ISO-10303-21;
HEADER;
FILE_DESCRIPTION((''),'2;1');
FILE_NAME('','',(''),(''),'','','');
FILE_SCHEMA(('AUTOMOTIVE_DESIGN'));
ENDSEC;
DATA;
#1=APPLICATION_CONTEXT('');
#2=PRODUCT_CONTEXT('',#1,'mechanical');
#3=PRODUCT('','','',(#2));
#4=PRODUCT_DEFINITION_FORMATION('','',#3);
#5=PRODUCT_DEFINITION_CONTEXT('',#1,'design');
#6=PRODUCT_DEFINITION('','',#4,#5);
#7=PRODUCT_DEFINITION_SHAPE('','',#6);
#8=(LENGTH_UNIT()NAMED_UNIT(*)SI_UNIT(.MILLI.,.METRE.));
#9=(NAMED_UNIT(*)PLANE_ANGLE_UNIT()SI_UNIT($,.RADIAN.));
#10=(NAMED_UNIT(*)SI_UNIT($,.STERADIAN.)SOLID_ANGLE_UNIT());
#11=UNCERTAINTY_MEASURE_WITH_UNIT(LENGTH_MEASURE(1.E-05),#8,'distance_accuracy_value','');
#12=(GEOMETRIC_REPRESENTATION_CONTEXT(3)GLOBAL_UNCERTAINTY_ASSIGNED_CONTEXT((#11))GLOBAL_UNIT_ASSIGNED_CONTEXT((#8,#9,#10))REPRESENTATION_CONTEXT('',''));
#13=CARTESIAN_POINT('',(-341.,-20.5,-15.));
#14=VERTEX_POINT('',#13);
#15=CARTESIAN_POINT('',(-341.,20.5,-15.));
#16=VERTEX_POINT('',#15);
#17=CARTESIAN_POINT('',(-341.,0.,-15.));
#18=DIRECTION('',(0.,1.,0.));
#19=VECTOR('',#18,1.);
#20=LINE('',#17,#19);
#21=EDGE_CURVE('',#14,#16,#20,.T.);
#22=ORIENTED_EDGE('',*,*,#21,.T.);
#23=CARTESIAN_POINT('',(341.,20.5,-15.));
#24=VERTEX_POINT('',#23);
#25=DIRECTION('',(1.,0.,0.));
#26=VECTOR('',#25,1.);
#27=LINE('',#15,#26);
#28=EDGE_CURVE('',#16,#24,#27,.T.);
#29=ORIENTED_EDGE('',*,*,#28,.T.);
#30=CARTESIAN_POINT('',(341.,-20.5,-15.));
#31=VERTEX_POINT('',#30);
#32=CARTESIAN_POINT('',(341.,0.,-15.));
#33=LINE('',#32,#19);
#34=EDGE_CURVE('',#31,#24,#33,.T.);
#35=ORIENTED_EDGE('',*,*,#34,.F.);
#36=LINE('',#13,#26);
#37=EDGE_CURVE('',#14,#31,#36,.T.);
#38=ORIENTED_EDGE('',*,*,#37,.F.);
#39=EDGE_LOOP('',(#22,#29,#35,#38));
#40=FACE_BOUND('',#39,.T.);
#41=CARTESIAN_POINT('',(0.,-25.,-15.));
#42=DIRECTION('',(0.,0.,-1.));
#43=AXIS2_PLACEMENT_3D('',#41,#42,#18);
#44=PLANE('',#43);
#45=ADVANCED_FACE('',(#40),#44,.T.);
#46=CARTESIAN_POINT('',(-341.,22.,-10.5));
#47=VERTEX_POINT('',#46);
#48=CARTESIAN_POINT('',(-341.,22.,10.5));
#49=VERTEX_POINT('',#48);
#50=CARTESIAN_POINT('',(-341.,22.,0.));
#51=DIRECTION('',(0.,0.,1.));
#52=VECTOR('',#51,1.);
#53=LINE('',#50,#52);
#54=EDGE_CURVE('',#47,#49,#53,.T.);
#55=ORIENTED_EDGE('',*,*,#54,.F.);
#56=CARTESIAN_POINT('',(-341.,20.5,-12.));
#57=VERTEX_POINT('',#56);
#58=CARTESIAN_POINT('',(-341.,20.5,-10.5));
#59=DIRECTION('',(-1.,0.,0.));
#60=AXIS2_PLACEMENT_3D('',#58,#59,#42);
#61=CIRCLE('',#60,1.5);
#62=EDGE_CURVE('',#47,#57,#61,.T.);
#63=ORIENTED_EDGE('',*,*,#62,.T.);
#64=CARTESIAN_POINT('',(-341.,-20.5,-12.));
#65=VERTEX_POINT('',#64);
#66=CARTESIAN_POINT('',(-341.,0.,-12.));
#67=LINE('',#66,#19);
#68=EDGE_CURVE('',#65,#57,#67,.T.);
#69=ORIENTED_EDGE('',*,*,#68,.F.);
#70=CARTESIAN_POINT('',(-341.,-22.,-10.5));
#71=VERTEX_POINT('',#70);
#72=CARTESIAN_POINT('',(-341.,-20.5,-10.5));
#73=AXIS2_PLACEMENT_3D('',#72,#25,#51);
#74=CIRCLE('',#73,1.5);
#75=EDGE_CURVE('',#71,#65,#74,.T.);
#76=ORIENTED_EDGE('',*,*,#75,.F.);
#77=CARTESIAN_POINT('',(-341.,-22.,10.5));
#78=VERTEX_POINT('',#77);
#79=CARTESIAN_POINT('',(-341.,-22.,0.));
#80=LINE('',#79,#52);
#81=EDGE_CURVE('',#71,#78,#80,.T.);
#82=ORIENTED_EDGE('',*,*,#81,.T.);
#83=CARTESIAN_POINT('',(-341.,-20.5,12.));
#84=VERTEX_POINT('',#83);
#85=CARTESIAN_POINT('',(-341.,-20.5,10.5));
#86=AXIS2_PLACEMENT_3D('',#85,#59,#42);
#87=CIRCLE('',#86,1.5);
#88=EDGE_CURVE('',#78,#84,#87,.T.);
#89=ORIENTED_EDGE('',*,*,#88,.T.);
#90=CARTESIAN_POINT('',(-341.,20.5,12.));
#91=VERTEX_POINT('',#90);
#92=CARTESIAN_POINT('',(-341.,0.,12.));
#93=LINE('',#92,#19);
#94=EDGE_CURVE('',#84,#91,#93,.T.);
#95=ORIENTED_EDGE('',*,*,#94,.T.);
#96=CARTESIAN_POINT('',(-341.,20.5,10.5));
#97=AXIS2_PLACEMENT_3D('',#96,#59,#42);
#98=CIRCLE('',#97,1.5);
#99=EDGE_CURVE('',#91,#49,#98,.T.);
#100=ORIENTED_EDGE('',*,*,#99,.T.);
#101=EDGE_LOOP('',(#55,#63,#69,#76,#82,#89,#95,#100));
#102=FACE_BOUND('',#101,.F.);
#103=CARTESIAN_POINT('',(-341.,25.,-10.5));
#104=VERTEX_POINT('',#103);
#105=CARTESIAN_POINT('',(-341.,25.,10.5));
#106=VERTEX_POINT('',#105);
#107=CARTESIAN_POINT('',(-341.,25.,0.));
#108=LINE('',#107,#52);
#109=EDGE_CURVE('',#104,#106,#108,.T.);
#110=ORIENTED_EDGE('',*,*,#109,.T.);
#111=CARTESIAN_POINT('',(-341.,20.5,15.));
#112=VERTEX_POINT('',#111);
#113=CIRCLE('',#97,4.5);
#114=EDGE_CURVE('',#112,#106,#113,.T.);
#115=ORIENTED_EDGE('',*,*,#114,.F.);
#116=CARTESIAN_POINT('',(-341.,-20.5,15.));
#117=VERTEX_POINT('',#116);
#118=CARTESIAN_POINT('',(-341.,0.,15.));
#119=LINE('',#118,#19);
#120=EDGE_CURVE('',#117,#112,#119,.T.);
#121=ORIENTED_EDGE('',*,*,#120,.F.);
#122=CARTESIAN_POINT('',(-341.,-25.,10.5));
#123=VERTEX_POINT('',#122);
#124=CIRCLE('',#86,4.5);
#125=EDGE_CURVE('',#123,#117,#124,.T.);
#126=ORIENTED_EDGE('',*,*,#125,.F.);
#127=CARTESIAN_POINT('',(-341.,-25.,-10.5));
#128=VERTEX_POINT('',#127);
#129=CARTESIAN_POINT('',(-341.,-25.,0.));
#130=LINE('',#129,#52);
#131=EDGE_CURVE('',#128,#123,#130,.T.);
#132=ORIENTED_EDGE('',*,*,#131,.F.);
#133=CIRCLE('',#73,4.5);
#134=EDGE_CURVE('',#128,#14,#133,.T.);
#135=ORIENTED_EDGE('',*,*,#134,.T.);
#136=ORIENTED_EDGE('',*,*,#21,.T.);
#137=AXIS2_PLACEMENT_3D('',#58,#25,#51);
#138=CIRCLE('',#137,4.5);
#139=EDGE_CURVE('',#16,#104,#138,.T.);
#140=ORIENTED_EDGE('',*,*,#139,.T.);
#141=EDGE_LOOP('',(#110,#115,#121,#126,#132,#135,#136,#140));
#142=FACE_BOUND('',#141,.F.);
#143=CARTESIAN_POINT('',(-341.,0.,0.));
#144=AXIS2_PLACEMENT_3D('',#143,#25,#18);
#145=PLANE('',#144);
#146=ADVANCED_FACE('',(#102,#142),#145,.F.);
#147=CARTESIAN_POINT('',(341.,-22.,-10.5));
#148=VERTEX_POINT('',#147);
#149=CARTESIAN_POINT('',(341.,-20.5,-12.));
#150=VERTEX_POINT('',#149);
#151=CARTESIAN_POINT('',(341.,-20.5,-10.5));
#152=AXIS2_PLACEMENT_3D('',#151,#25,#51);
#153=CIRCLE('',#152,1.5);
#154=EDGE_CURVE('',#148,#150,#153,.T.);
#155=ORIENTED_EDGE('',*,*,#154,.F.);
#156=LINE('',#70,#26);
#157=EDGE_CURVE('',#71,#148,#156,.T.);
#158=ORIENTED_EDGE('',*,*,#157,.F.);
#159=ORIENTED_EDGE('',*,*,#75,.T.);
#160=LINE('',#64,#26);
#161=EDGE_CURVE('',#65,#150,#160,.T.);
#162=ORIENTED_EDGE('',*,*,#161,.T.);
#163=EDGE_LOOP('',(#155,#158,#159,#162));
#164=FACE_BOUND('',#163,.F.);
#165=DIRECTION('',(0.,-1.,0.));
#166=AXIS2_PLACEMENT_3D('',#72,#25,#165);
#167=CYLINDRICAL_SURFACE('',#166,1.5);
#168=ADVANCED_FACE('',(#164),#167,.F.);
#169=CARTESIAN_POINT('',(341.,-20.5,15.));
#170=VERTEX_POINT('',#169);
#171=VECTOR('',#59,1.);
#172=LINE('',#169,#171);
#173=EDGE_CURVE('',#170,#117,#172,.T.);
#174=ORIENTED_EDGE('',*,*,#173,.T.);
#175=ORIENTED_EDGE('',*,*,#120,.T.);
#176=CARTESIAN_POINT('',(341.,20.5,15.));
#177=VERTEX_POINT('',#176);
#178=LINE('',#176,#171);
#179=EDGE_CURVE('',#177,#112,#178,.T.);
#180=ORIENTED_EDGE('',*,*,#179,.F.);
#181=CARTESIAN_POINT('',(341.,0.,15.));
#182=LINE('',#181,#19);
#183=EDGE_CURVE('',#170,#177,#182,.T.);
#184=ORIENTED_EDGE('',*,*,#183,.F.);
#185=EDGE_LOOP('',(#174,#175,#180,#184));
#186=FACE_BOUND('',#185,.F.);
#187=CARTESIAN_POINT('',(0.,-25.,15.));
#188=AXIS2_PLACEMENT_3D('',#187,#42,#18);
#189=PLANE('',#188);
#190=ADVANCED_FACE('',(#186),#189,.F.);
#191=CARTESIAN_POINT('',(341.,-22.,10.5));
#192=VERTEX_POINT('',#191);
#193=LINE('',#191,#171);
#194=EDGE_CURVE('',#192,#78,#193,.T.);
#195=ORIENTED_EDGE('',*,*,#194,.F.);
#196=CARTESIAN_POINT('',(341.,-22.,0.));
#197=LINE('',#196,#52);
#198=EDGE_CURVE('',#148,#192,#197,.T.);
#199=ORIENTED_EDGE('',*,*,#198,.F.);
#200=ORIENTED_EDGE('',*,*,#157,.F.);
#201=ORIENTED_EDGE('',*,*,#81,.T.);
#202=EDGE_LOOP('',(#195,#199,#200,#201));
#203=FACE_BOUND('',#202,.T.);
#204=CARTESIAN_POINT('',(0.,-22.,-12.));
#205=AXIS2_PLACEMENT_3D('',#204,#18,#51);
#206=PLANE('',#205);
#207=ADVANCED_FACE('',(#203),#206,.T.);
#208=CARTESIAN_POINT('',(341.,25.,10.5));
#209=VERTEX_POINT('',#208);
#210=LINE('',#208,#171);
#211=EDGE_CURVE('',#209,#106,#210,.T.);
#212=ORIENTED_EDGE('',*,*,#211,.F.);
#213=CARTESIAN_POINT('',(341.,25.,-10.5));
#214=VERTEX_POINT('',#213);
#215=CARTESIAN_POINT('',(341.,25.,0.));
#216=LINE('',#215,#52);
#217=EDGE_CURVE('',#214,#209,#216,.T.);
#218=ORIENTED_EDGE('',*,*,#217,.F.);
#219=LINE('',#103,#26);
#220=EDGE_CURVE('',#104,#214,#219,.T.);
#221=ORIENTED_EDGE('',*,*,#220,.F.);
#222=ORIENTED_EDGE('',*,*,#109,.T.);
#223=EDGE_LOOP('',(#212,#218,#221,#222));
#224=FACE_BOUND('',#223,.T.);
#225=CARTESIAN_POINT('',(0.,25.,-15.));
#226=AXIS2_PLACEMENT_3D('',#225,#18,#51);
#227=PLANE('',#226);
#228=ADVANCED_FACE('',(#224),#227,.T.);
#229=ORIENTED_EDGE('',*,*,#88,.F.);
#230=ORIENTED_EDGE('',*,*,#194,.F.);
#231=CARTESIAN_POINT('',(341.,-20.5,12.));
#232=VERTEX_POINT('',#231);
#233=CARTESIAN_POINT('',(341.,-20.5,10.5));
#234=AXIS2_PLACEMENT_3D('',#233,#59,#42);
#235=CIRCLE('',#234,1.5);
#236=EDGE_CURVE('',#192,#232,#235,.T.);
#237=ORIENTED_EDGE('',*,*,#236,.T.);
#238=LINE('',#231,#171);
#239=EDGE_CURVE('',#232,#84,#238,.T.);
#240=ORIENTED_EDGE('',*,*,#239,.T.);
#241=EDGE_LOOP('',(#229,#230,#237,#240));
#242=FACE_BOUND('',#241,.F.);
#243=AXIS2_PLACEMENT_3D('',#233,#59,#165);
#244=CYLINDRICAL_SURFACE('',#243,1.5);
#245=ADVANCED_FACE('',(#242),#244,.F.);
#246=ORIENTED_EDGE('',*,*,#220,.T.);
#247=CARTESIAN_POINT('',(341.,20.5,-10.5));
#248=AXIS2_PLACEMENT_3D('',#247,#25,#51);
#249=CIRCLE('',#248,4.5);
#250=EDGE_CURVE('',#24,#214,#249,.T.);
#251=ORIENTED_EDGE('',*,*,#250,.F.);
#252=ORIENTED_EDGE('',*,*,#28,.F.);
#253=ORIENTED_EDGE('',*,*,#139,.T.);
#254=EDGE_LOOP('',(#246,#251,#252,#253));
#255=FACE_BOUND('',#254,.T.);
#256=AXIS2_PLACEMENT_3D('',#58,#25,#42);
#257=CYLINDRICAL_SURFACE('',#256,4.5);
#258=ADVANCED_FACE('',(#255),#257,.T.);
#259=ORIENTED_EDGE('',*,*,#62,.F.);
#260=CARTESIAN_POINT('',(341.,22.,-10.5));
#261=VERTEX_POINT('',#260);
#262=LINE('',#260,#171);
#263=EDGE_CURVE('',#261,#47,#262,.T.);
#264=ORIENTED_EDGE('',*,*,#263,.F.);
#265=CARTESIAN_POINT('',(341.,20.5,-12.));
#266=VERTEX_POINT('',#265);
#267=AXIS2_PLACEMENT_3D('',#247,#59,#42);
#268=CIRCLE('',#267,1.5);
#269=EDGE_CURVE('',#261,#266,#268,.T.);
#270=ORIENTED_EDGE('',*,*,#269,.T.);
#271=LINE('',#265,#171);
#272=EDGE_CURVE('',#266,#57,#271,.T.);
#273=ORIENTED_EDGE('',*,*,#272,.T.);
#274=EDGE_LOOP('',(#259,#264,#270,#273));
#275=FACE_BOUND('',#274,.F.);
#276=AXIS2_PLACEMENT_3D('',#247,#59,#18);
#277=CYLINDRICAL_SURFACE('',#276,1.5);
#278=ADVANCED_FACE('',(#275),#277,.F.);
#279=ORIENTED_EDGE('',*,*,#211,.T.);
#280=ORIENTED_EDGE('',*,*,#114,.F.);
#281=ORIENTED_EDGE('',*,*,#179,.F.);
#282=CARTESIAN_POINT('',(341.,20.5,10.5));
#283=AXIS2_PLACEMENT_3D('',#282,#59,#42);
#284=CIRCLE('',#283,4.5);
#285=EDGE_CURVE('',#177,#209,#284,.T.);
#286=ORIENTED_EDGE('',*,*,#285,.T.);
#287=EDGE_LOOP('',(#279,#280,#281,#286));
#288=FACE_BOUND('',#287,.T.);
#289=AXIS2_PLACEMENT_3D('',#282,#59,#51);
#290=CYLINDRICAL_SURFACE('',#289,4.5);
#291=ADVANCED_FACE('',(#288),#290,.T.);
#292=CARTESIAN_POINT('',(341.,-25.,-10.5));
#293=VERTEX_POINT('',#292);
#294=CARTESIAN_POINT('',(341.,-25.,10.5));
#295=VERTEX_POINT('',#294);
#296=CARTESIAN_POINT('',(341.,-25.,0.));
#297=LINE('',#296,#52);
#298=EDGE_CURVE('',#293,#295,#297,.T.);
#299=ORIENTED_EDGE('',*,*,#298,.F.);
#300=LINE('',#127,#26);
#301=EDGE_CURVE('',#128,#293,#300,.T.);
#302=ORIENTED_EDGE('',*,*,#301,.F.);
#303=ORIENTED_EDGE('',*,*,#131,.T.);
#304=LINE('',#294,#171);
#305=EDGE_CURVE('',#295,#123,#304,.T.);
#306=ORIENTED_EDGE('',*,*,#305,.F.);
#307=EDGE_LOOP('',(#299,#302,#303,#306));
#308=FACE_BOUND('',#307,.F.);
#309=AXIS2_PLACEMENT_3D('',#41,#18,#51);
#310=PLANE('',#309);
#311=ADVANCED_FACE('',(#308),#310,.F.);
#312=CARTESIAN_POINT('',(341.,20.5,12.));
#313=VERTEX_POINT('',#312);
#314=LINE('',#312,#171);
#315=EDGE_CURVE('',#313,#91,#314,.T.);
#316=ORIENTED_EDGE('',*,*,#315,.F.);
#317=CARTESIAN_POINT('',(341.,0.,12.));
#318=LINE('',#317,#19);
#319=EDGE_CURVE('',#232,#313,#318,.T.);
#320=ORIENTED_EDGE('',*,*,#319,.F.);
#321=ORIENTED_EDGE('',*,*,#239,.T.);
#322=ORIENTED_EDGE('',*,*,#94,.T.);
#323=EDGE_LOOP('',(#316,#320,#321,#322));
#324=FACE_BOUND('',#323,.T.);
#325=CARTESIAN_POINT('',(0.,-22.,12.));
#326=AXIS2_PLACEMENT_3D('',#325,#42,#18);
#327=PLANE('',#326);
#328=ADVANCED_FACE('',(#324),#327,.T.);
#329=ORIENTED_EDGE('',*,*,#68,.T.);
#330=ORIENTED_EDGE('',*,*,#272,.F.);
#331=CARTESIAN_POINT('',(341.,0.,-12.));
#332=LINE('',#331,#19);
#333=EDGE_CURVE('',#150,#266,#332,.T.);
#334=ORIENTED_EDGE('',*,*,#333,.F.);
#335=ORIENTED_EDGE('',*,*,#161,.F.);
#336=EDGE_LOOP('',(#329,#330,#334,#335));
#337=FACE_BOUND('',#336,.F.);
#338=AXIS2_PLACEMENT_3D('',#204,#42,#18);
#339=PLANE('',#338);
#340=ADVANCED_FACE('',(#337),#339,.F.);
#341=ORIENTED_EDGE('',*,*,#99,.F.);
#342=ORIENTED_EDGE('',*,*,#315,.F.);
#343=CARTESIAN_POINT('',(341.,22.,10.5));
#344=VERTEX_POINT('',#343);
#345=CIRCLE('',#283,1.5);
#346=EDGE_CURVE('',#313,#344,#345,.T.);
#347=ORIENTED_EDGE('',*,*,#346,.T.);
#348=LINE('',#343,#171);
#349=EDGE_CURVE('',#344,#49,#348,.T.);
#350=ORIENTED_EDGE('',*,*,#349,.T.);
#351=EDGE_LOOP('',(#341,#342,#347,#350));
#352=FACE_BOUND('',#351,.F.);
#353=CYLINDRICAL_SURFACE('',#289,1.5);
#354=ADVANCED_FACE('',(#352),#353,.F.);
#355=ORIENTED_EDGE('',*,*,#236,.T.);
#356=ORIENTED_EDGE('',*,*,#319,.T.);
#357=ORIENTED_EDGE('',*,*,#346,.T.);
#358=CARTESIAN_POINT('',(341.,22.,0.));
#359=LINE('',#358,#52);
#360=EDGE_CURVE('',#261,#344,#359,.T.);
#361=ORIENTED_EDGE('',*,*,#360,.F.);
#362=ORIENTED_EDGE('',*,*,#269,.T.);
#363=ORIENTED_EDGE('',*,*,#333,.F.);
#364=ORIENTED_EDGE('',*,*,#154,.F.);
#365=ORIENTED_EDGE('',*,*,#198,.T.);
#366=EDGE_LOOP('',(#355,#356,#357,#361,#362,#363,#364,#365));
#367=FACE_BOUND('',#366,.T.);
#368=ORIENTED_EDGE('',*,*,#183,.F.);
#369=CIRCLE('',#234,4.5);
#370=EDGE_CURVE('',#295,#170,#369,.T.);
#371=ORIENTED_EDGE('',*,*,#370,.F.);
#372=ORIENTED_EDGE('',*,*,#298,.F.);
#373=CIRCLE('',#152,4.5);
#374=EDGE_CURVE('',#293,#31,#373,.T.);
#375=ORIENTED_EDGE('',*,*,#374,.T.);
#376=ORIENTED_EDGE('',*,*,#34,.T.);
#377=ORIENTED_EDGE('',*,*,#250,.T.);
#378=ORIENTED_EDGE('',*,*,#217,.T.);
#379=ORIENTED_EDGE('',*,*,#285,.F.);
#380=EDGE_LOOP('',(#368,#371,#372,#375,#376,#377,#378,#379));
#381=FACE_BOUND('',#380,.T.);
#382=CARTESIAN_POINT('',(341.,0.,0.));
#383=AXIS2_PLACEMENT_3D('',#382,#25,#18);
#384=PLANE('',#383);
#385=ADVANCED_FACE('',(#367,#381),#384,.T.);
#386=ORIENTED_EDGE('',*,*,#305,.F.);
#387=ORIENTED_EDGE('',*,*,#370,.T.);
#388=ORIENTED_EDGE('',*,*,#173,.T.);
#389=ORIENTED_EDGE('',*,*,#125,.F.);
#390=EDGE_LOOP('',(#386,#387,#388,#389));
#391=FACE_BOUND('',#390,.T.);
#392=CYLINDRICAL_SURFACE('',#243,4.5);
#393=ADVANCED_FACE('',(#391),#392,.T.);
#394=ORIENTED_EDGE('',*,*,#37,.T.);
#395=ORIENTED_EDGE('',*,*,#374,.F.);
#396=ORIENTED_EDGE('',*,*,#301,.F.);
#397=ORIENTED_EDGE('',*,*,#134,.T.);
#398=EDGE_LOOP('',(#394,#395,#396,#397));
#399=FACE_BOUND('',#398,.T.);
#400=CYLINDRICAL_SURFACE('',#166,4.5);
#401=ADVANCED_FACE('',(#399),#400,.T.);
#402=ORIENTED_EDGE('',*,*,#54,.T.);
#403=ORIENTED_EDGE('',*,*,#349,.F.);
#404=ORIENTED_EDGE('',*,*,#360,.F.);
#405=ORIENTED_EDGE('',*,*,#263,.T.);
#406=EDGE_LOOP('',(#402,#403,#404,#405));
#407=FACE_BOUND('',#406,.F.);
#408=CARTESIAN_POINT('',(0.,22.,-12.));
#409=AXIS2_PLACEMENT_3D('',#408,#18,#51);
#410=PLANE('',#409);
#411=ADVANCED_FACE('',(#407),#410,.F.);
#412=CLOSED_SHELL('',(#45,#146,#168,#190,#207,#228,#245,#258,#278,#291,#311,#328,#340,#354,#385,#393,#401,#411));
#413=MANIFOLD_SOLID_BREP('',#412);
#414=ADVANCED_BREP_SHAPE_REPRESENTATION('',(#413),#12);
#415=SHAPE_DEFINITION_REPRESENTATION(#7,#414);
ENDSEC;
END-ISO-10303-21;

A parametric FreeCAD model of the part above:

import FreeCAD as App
import Part
import Sketcher

V = App.Vector
Q = App.Units.Quantity


def edges_at(feature, points):
    """Names of the edges that pass closest to the given points."""
    edges = feature.Shape.Edges
    near = lambda p: min(range(len(edges)), key=lambda i: edges[i].distToShape(Part.Vertex(*p))[0])
    return sorted({f"Edge{near(p) + 1}" for p in points})

doc = App.newDocument("Part")
params = doc.addObject("Spreadsheet::Sheet", "Params")
for row, (alias, value) in enumerate([
    ("sketch1_width", "50 mm"),
    ("sketch1_width2", "44 mm"),
    ("sketch1_height", "30 mm"),
    ("sketch1_height2", "24 mm"),
    ("pad1_length", "682 mm"),
    ("fillet_radius", "1.5 mm"),
    ("fillet2_radius", "4.5 mm"),
], start=1):
    params.set(f"A{row}", alias)
    params.set(f"B{row}", "=" + value)
    params.setAlias(f"B{row}", alias)

body = doc.addObject("PartDesign::Body", "Body")

sketch1 = body.newObject("Sketcher::SketchObject", "Sketch")
sketch1.AttachmentSupport = (doc.getObject("YZ_Plane"), [""])
sketch1.MapMode = "FlatFace"
sketch1.addGeometry(Part.LineSegment(V(-25, 15, 0), V(-25, -15, 0)), False)
sketch1.addGeometry(Part.LineSegment(V(-25, -15, 0), V(25, -15, 0)), False)
sketch1.addGeometry(Part.LineSegment(V(25, -15, 0), V(25, 15, 0)), False)
sketch1.addGeometry(Part.LineSegment(V(25, 15, 0), V(-25, 15, 0)), False)
sketch1.addGeometry(Part.LineSegment(V(22, -12, 0), V(-22, -12, 0)), False)
sketch1.addGeometry(Part.LineSegment(V(-22, -12, 0), V(-22, 12, 0)), False)
sketch1.addGeometry(Part.LineSegment(V(-22, 12, 0), V(22, 12, 0)), False)
sketch1.addGeometry(Part.LineSegment(V(22, 12, 0), V(22, -12, 0)), False)
sketch1.addConstraint(Sketcher.Constraint("Coincident", 0, 2, 1, 1))
sketch1.addConstraint(Sketcher.Constraint("Coincident", 1, 2, 2, 1))
sketch1.addConstraint(Sketcher.Constraint("Coincident", 2, 2, 3, 1))
sketch1.addConstraint(Sketcher.Constraint("Coincident", 3, 2, 0, 1))
sketch1.addConstraint(Sketcher.Constraint("Coincident", 4, 2, 5, 1))
sketch1.addConstraint(Sketcher.Constraint("Coincident", 5, 2, 6, 1))
sketch1.addConstraint(Sketcher.Constraint("Coincident", 6, 2, 7, 1))
sketch1.addConstraint(Sketcher.Constraint("Coincident", 7, 2, 4, 1))
sketch1.addConstraint(Sketcher.Constraint("Vertical", 0))
sketch1.addConstraint(Sketcher.Constraint("Horizontal", 1))
sketch1.addConstraint(Sketcher.Constraint("Vertical", 2))
sketch1.addConstraint(Sketcher.Constraint("Horizontal", 3))
sketch1.addConstraint(Sketcher.Constraint("Horizontal", 4))
sketch1.addConstraint(Sketcher.Constraint("Vertical", 5))
sketch1.addConstraint(Sketcher.Constraint("Horizontal", 6))
sketch1.addConstraint(Sketcher.Constraint("Vertical", 7))
sketch1.addConstraint(Sketcher.Constraint("Symmetric", 0, 2, 2, 2, -1, 1))
sketch1.addConstraint(Sketcher.Constraint("Symmetric", 4, 2, 6, 2, -1, 1))
sketch1.addConstraint(Sketcher.Constraint("DistanceX", 1, 1, 1, 2, Q("50 mm")))
sketch1.addConstraint(Sketcher.Constraint("DistanceX", 4, 2, 4, 1, Q("44 mm")))
sketch1.addConstraint(Sketcher.Constraint("DistanceY", 0, 2, 0, 1, Q("30 mm")))
sketch1.addConstraint(Sketcher.Constraint("DistanceY", 5, 1, 5, 2, Q("24 mm")))
sketch1.setExpression("Constraints[18]", "Params.sketch1_width")
sketch1.setExpression("Constraints[19]", "Params.sketch1_width2")
sketch1.setExpression("Constraints[20]", "Params.sketch1_height")
sketch1.setExpression("Constraints[21]", "Params.sketch1_height2")
pad1 = body.newObject("PartDesign::Pad", "Pad")
pad1.Profile = sketch1
pad1.setExpression("Length", "Params.pad1_length")
pad1.Midplane = True
doc.recompute()

fillet = body.newObject("PartDesign::Fillet", "Fillet")
fillet.Base = (pad1, edges_at(pad1, [
    (0, -22, -12),
    (0, -22, 12),
    (0, 22, -12),
    (0, 22, 12),
]))
fillet.setExpression("Radius", "Params.fillet_radius")
doc.recompute()

fillet2 = body.newObject("PartDesign::Fillet", "Fillet001")
fillet2.Base = (fillet, edges_at(fillet, [
    (0, -25, 15),
    (0, -25, -15),
    (0, 25, -15),
    (0, 25, 15),
]))
fillet2.setExpression("Radius", "Params.fillet2_radius")

doc.recompute()
